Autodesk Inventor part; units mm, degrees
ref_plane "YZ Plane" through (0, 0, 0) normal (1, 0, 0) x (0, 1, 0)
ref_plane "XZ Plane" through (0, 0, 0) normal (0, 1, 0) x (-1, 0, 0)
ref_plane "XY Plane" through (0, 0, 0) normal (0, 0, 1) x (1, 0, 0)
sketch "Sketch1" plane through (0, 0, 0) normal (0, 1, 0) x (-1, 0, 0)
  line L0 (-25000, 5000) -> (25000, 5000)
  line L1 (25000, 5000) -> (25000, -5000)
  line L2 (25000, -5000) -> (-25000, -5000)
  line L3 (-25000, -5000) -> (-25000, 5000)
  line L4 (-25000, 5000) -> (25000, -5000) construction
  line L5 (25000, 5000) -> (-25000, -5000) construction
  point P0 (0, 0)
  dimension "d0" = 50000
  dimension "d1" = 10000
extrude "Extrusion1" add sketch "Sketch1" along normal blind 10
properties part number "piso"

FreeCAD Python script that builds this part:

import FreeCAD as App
import Part
import Sketcher

V = App.Vector
Q = App.Units.Quantity

doc = App.newDocument("Part")
body = doc.addObject("PartDesign::Body", "Body")

# Sketch on XZ plane
sketch1 = body.newObject("Sketcher::SketchObject", "Sketch")
sketch1.AttachmentSupport = (doc.getObject("XZ_Plane"), [""])
sketch1.MapMode = "FlatFace"
sketch1.addGeometry([
    Part.LineSegment(V(-25000, 5000, 0), V(25000, 5000, 0)),
    Part.LineSegment(V(25000, 5000, 0), V(25000, -5000, 0)),
    Part.LineSegment(V(25000, -5000, 0), V(-25000, -5000, 0)),
    Part.LineSegment(V(-25000, -5000, 0), V(-25000, 5000, 0)),
], False)
sketch1.addConstraint([
    Sketcher.Constraint("Coincident", 0, 2, 1, 1),
    Sketcher.Constraint("Coincident", 1, 2, 2, 1),
    Sketcher.Constraint("Coincident", 2, 2, 3, 1),
    Sketcher.Constraint("Coincident", 3, 2, 0, 1),
    Sketcher.Constraint("Horizontal", 0),
    Sketcher.Constraint("Vertical", 1),
    Sketcher.Constraint("Horizontal", 2),
    Sketcher.Constraint("Vertical", 3),
    Sketcher.Constraint("Symmetric", 0, 2, 2, 2, -1, 1),
    Sketcher.Constraint("DistanceX", 0, 1, 0, 2, Q("50000 mm")),
    Sketcher.Constraint("DistanceY", 1, 2, 1, 1, Q("10000 mm")),
])
pad1 = body.newObject("PartDesign::Pad", "Pad")
pad1.Profile = sketch1
pad1.Length = 10
pad1.Reversed = True

doc.recompute()
